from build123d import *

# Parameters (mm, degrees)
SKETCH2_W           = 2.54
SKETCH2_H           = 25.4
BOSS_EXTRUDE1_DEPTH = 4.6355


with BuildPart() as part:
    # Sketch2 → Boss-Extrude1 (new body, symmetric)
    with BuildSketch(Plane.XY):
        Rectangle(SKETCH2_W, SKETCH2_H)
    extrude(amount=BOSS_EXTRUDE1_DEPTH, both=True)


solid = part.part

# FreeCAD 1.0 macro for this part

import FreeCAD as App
import Part
import Sketcher

V = App.Vector
Q = App.Units.Quantity

doc = App.newDocument("Part")
body = doc.addObject("PartDesign::Body", "Body")

sketch1 = doc.addObject("Sketcher::SketchObject", "Sketch")
body.addObject(sketch1)
sketch1.AttachmentSupport = (doc.XY_Plane, [""])
sketch1.MapMode = "FlatFace"
sketch1.addGeometry([
    Part.LineSegment(V(-1.3, 12.7, 0), V(-1.3, -12.7, 0)),
    Part.LineSegment(V(-1.3, -12.7, 0), V(1.3, -12.7, 0)),
    Part.LineSegment(V(1.3, -12.7, 0), V(1.3, 12.7, 0)),
    Part.LineSegment(V(1.3, 12.7, 0), V(-1.3, 12.7, 0)),
], False)
sketch1.addConstraint([
    Sketcher.Constraint("Coincident", 0, 2, 1, 1),
    Sketcher.Constraint("Coincident", 1, 2, 2, 1),
    Sketcher.Constraint("Coincident", 2, 2, 3, 1),
    Sketcher.Constraint("Coincident", 3, 2, 0, 1),
    Sketcher.Constraint("Vertical", 0),
    Sketcher.Constraint("Horizontal", 1),
    Sketcher.Constraint("Vertical", 2),
    Sketcher.Constraint("Horizontal", 3),
    Sketcher.Constraint("Symmetric", 0, 2, 2, 2, -1, 1),
    Sketcher.Constraint("DistanceY", 0, 2, 0, 1, Q("1 in")),
    Sketcher.Constraint("DistanceX", 1, 1, 1, 2, Q("0.1 in")),
])
pad1 = doc.addObject("PartDesign::Pad", "Pad")
body.addObject(pad1)
pad1.Profile = sketch1
pad1.Length = Q("0.365 in")
pad1.Midplane = True

doc.recompute()
